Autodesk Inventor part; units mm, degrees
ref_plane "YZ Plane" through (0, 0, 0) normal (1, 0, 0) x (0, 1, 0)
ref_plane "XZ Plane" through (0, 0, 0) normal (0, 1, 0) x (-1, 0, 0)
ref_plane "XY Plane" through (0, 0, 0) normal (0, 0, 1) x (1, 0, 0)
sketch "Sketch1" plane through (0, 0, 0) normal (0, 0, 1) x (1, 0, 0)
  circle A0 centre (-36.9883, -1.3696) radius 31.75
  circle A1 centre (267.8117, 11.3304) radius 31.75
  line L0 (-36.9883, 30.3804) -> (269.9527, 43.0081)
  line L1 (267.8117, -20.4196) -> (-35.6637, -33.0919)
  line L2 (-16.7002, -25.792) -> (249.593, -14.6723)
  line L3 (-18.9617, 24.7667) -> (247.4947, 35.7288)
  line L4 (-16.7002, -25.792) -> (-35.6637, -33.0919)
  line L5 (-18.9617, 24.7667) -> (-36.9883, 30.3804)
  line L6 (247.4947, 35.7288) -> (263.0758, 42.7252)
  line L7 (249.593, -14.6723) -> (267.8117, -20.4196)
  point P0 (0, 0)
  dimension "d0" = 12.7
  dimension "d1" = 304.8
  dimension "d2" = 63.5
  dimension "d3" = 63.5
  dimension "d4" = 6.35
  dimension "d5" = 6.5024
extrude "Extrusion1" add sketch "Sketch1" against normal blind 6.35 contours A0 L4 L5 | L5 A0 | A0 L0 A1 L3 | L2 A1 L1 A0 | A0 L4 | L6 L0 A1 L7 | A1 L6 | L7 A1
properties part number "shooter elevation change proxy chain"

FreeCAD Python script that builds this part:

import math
import FreeCAD as App
import Part
import Sketcher
from FreeCAD import Vector
Q = App.Units.Quantity

doc = App.newDocument("Part")
body = doc.addObject("PartDesign::Body", "Body")

# Sketch on XY plane
sketch1 = body.newObject("Sketcher::SketchObject", "Sketch")
sketch1.AttachmentSupport = (doc.getObject("XY_Plane"), [""])
sketch1.MapMode = "FlatFace"
sketch1.addGeometry([
    Part.ArcOfCircle(Part.Circle(Vector(-37, -1, 0), Vector(0, 0, 1), 32), math.radians(90), math.radians(272)),  # 0
    Part.LineSegment(Vector(-36, -33, 0), Vector(268, -20, 0)),  # 1
    Part.ArcOfCircle(Part.Circle(Vector(268, 11, 0), Vector(0, 0, 1), 32), math.radians(-90), math.radians(86)),  # 2
    Part.LineSegment(Vector(270, 43, 0), Vector(-37, 30, 0)),  # 3
    Part.ArcOfCircle(Part.Circle(Vector(-37, -1, 0), Vector(0, 0, 1), 32), math.radians(-50), math.radians(55)),  # 4
    Part.LineSegment(Vector(-19, 25, 0), Vector(247, 36, 0)),  # 5
    Part.ArcOfCircle(Part.Circle(Vector(268, 11, 0), Vector(0, 0, 1), 32), math.radians(130), math.radians(235)),  # 6
    Part.LineSegment(Vector(250, -15, 0), Vector(-17, -26, 0)),  # 7
], False)
sketch1.addConstraint([
    Sketcher.Constraint("Tangent", 0, 2, 1, 1),
    Sketcher.Constraint("Coincident", 1, 2, 2, 1),
    Sketcher.Constraint("Coincident", 2, 2, 3, 1),
    Sketcher.Constraint("Coincident", 3, 2, 0, 1),
    Sketcher.Constraint("Coincident", 4, 2, 5, 1),
    Sketcher.Constraint("Coincident", 5, 2, 6, 1),
    Sketcher.Constraint("Coincident", 6, 2, 7, 1),
    Sketcher.Constraint("Coincident", 7, 2, 4, 1),
    Sketcher.Constraint("Coincident", 4, 3, 0, 3),
    Sketcher.Constraint("Coincident", 6, 3, 2, 3),
    Sketcher.Constraint("Equal", 0, 2),
    Sketcher.Constraint("Equal", 2, 4),
    Sketcher.Constraint("Equal", 4, 6),
    Sketcher.Constraint("Parallel", 3, 5),
    Sketcher.Constraint("Parallel", 1, 7),
    Sketcher.Constraint("Vertical", 6, 3, 1, 2),
    Sketcher.Constraint("Vertical", 4, 3, 3, 2),
    Sketcher.Constraint("Radius", 0, Q("1.25 in")),
    Sketcher.Constraint("DistanceX", 0, 3, 2, 3, Q("12 in")),
    Sketcher.Constraint("DistanceY", 0, 3, 2, 3, Q("0.5 in")),
    Sketcher.Constraint("DistanceX", -1, 1, 6, 2, Q("9.8265 in")),
    Sketcher.Constraint("DistanceX", 7, 2, -1, 1, Q("0.6575 in")),
    Sketcher.Constraint("DistanceX", 2, 3, 2, 2, Q("0.0843 in")),
    Sketcher.Constraint("DistanceX", 3, 2, 4, 2, Q("0.7097 in")),
    Sketcher.Constraint("DistanceY", 0, 3, -1, 1, 1.3696),
])
pad1 = body.newObject("PartDesign::Pad", "Pad")
pad1.Profile = sketch1
pad1.Length = Q("0.25 in")
pad1.Reversed = True

doc.recompute()
